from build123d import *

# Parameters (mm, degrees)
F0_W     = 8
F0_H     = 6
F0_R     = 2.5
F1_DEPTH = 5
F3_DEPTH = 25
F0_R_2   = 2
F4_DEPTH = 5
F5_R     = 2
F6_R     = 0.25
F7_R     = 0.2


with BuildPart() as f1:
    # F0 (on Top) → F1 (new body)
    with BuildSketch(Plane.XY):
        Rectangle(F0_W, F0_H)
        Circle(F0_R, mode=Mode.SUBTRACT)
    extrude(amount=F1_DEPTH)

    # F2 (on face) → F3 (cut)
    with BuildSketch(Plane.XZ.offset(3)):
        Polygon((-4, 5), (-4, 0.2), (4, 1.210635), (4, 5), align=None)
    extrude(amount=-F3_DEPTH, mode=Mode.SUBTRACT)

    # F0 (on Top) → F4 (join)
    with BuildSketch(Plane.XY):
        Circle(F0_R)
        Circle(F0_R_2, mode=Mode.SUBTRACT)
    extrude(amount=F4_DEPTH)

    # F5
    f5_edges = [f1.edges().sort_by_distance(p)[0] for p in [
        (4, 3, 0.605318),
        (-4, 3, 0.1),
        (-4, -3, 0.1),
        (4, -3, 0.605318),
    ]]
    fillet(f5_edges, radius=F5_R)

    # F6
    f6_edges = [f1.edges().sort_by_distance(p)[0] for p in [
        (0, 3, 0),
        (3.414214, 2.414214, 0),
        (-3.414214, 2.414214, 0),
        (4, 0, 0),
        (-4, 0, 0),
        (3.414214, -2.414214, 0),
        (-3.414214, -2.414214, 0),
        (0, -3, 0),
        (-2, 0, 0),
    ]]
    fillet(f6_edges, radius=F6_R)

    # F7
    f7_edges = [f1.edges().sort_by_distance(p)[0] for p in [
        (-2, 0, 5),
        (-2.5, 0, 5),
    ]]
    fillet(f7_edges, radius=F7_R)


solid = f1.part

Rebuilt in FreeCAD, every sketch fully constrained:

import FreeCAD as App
import Part
import Sketcher

V = App.Vector
Q = App.Units.Quantity


def edges_at(feature, points):
    """Names of the edges that pass closest to the given points."""
    edges = feature.Shape.Edges
    near = lambda p: min(range(len(edges)), key=lambda i: edges[i].distToShape(Part.Vertex(*p))[0])
    return sorted({f"Edge{near(p) + 1}" for p in points})

doc = App.newDocument("Part")
params = doc.addObject("Spreadsheet::Sheet", "Params")
for row, (alias, value) in enumerate([
    ("sketch1_diameter", "5 mm"),
    ("sketch1_width", "8 mm"),
    ("sketch1_height", "6 mm"),
    ("pad1_length", "5 mm"),
    ("sketch2_width", "8 mm"),
    ("sketch2_height", "4.8 mm"),
    ("pocket1_length", "25 mm"),
    ("sketch3_diameter", "5 mm"),
    ("sketch3_diameter2", "4 mm"),
    ("pad2_length", "5 mm"),
    ("fillet_radius", "2 mm"),
    ("fillet2_radius", "0.25 mm"),
    ("fillet3_radius", "0.2 mm"),
], start=1):
    params.set(f"A{row}", alias)
    params.set(f"B{row}", "=" + value)
    params.setAlias(f"B{row}", alias)

body = doc.addObject("PartDesign::Body", "Body")

# Sketch on XY plane
sketch1 = body.newObject("Sketcher::SketchObject", "Sketch")
sketch1.AttachmentSupport = (doc.getObject("XY_Plane"), [""])
sketch1.MapMode = "FlatFace"
sketch1.addGeometry([
    Part.LineSegment(V(-4, 3, 0), V(-4, -3, 0)),  # 0
    Part.LineSegment(V(-4, -3, 0), V(4, -3, 0)),  # 1
    Part.LineSegment(V(4, -3, 0), V(4, 3, 0)),  # 2
    Part.LineSegment(V(4, 3, 0), V(-4, 3, 0)),  # 3
    Part.Circle(V(0, 0, 0), V(0, 0, 1), 2.5),  # 4
], False)
sketch1.addConstraint([
    Sketcher.Constraint("Coincident", 0, 2, 1, 1),
    Sketcher.Constraint("Coincident", 1, 2, 2, 1),
    Sketcher.Constraint("Coincident", 2, 2, 3, 1),
    Sketcher.Constraint("Coincident", 3, 2, 0, 1),
    Sketcher.Constraint("Vertical", 0),
    Sketcher.Constraint("Horizontal", 1),
    Sketcher.Constraint("Vertical", 2),
    Sketcher.Constraint("Horizontal", 3),
    Sketcher.Constraint("Coincident", 4, 3, -1, 1),
    Sketcher.Constraint("Symmetric", 0, 2, 2, 2, -1, 1),
    Sketcher.Constraint("Diameter", 4, Q("5 mm")),
    Sketcher.Constraint("DistanceX", 1, 1, 1, 2, Q("8 mm")),
    Sketcher.Constraint("DistanceY", 0, 2, 0, 1, Q("6 mm")),
])
sketch1.setExpression("Constraints[10]", "Params.sketch1_diameter")
sketch1.setExpression("Constraints[11]", "Params.sketch1_width")
sketch1.setExpression("Constraints[12]", "Params.sketch1_height")
pad1 = body.newObject("PartDesign::Pad", "Pad")
pad1.Profile = sketch1
pad1.setExpression("Length", "Params.pad1_length")

# Sketch on XZ plane
sketch2 = body.newObject("Sketcher::SketchObject", "Sketch001")
sketch2.AttachmentSupport = (doc.getObject("XZ_Plane"), [""])
sketch2.MapMode = "FlatFace"
sketch2.AttachmentOffset = App.Placement(V(0, 0, 3), App.Rotation())
sketch2.addGeometry([
    Part.LineSegment(V(-4, 5, 0), V(-4, 0.2, 0)),
    Part.LineSegment(V(-4, 0.2, 0), V(4, 1.210635, 0)),
    Part.LineSegment(V(4, 1.210635, 0), V(4, 5, 0)),
    Part.LineSegment(V(4, 5, 0), V(-4, 5, 0)),
], False)
sketch2.addConstraint([
    Sketcher.Constraint("Coincident", 0, 2, 1, 1),
    Sketcher.Constraint("Coincident", 1, 2, 2, 1),
    Sketcher.Constraint("Coincident", 2, 2, 3, 1),
    Sketcher.Constraint("Coincident", 3, 2, 0, 1),
    Sketcher.Constraint("Vertical", 0),
    Sketcher.Constraint("Vertical", 2),
    Sketcher.Constraint("Horizontal", 3),
    Sketcher.Constraint("DistanceX", 3, 2, 3, 1, Q("8 mm")),
    Sketcher.Constraint("DistanceY", 0, 2, 0, 1, Q("4.8 mm")),
    Sketcher.Constraint("DistanceX", 0, 2, -1, 1, Q("4 mm")),
    Sketcher.Constraint("DistanceY", -1, 1, 2, 2, Q("5 mm")),
    Sketcher.Constraint("Angle", 1, Q("7.2 deg")),
])
sketch2.setExpression("Constraints[7]", "Params.sketch2_width")
sketch2.setExpression("Constraints[8]", "Params.sketch2_height")
pocket1 = body.newObject("PartDesign::Pocket", "Pocket")
pocket1.Profile = sketch2
pocket1.setExpression("Length", "Params.pocket1_length")

# Sketch on XY plane
sketch3 = body.newObject("Sketcher::SketchObject", "Sketch002")
sketch3.AttachmentSupport = (doc.getObject("XY_Plane"), [""])
sketch3.MapMode = "FlatFace"
sketch3.addGeometry([
    Part.Circle(V(0, 0, 0), V(0, 0, 1), 2.5),
    Part.Circle(V(0, 0, 0), V(0, 0, 1), 2),
], False)
sketch3.addConstraint([
    Sketcher.Constraint("Coincident", 0, 3, -1, 1),
    Sketcher.Constraint("Coincident", 1, 3, -1, 1),
    Sketcher.Constraint("Diameter", 0, Q("5 mm")),
    Sketcher.Constraint("Diameter", 1, Q("4 mm")),
])
sketch3.setExpression("Constraints[2]", "Params.sketch3_diameter")
sketch3.setExpression("Constraints[3]", "Params.sketch3_diameter2")
pad2 = body.newObject("PartDesign::Pad", "Pad001")
pad2.Profile = sketch3
pad2.setExpression("Length", "Params.pad2_length")
doc.recompute()

fillet = body.newObject("PartDesign::Fillet", "Fillet")
fillet.Base = (pad2, edges_at(pad2, [
    (4, 3, 0.605),
    (-4, 3, 0.1),
    (-4, -3, 0.1),
    (4, -3, 0.605),
]))
fillet.setExpression("Radius", "Params.fillet_radius")
doc.recompute()

fillet2 = body.newObject("PartDesign::Fillet", "Fillet001")
fillet2.Base = (fillet, edges_at(fillet, [
    (0, 3, 0),
    (3.414, 2.414, 0),
    (-3.414, 2.414, 0),
    (4, 0, 0),
    (-4, 0, 0),
    (3.414, -2.414, 0),
    (-3.414, -2.414, 0),
    (0, -3, 0),
    (-2, 0, 0),
]))
fillet2.setExpression("Radius", "Params.fillet2_radius")
doc.recompute()

fillet3 = body.newObject("PartDesign::Fillet", "Fillet002")
fillet3.Base = (fillet2, edges_at(fillet2, [(-2, 0, 5), (-2.5, 0, 5)]))
fillet3.setExpression("Radius", "Params.fillet3_radius")

doc.recompute()
